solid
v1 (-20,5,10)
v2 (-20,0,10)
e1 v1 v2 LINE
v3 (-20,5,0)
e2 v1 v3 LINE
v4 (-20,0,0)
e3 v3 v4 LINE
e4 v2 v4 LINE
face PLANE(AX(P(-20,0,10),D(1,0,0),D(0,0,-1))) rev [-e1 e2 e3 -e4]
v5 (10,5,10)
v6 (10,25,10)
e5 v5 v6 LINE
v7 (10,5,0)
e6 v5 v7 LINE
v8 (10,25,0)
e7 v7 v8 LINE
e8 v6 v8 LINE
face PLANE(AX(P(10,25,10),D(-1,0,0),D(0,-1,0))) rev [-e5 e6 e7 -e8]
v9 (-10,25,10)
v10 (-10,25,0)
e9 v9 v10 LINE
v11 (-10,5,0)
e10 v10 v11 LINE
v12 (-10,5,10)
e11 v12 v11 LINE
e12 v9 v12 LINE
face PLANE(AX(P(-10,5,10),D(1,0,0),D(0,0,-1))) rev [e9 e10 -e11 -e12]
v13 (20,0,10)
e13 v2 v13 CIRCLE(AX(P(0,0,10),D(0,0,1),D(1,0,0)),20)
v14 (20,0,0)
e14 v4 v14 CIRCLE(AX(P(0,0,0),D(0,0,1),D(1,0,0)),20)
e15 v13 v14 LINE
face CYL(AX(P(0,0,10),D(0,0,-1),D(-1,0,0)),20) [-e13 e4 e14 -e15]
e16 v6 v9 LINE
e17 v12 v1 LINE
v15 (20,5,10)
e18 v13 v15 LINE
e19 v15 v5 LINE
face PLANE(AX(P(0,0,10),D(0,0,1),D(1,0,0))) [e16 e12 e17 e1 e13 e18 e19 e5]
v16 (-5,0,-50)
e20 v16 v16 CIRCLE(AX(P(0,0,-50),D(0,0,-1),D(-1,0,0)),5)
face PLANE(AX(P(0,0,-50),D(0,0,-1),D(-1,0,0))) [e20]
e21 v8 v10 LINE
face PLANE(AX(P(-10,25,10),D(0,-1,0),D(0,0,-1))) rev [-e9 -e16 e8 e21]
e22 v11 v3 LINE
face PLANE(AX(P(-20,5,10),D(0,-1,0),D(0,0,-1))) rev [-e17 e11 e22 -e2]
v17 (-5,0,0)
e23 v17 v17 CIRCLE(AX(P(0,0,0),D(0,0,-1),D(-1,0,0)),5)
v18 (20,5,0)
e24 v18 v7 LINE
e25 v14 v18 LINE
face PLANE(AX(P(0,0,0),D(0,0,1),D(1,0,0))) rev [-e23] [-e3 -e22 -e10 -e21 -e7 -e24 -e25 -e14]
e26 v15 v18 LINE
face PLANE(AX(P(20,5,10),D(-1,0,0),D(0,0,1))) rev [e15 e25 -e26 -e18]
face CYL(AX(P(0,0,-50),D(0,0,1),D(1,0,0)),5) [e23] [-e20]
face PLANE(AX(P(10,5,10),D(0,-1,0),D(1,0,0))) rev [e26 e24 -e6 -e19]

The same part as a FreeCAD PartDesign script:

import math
import FreeCAD as App
import Part
import Sketcher

doc = App.newDocument("Part")
params = doc.addObject("Spreadsheet::Sheet", "Params")
for row, (alias, value) in enumerate([
    ("sketch1_radius", "20 mm"),
    ("sketch1_width", "10 mm"),
    ("sketch1_height", "5 mm"),
    ("pad1_length", "10 mm"),
    ("sketch2_diameter", "10 mm"),
    ("pad2_length", "50 mm"),
], start=1):
    params.set(f"A{row}", alias)
    params.set(f"B{row}", "=" + value)
    params.setAlias(f"B{row}", alias)

body = doc.addObject("PartDesign::Body", "Body")

# Sketch on XY plane
sketch1 = body.newObject("Sketcher::SketchObject", "Sketch")
sketch1.AttachmentSupport = (doc.getObject("XY_Plane"), [""])
sketch1.MapMode = "FlatFace"
sketch1.addGeometry(Part.LineSegment(App.Vector(-20, 5, 0), App.Vector(-20, 0, 0)), False)
sketch1.addGeometry(Part.ArcOfCircle(Part.Circle(App.Vector(0, 0, 0), App.Vector(0, 0, 1), 20), math.radians(180), math.radians(360)), False)
sketch1.addGeometry(Part.LineSegment(App.Vector(20, 0, 0), App.Vector(20, 5, 0)), False)
sketch1.addGeometry(Part.LineSegment(App.Vector(20, 5, 0), App.Vector(10, 5, 0)), False)
sketch1.addGeometry(Part.LineSegment(App.Vector(10, 5, 0), App.Vector(10, 25, 0)), False)
sketch1.addGeometry(Part.LineSegment(App.Vector(10, 25, 0), App.Vector(-10, 25, 0)), False)
sketch1.addGeometry(Part.LineSegment(App.Vector(-10, 25, 0), App.Vector(-10, 5, 0)), False)
sketch1.addGeometry(Part.LineSegment(App.Vector(-10, 5, 0), App.Vector(-20, 5, 0)), False)
sketch1.addConstraint(Sketcher.Constraint("Tangent", 0, 2, 1, 1))
sketch1.addConstraint(Sketcher.Constraint("Tangent", 1, 2, 2, 1))
sketch1.addConstraint(Sketcher.Constraint("Coincident", 2, 2, 3, 1))
sketch1.addConstraint(Sketcher.Constraint("Coincident", 3, 2, 4, 1))
sketch1.addConstraint(Sketcher.Constraint("Coincident", 4, 2, 5, 1))
sketch1.addConstraint(Sketcher.Constraint("Coincident", 5, 2, 6, 1))
sketch1.addConstraint(Sketcher.Constraint("Coincident", 6, 2, 7, 1))
sketch1.addConstraint(Sketcher.Constraint("Coincident", 7, 2, 0, 1))
sketch1.addConstraint(Sketcher.Constraint("Vertical", 0))
sketch1.addConstraint(Sketcher.Constraint("Vertical", 2))
sketch1.addConstraint(Sketcher.Constraint("Horizontal", 3))
sketch1.addConstraint(Sketcher.Constraint("Vertical", 4))
sketch1.addConstraint(Sketcher.Constraint("Horizontal", 5))
sketch1.addConstraint(Sketcher.Constraint("Vertical", 6))
sketch1.addConstraint(Sketcher.Constraint("Horizontal", 7))
sketch1.addConstraint(Sketcher.Constraint("Coincident", 1, 3, -1, 1))
sketch1.addConstraint(Sketcher.Constraint("Symmetric", 3, 2, 6, 2, -2))
sketch1.addConstraint(Sketcher.Constraint("Equal", 5, 4))
sketch1.addConstraint(Sketcher.Constraint("Radius", 1, 20.0))
sketch1.addConstraint(Sketcher.Constraint("DistanceX", 3, 2, 3, 1, 10.0))
sketch1.addConstraint(Sketcher.Constraint("DistanceY", 0, 2, 0, 1, 5.0))
sketch1.setExpression("Constraints[18]", "Params.sketch1_radius")
sketch1.setExpression("Constraints[19]", "Params.sketch1_width")
sketch1.setExpression("Constraints[20]", "Params.sketch1_height")
pad1 = body.newObject("PartDesign::Pad", "Pad")
pad1.Profile = sketch1
pad1.setExpression("Length", "Params.pad1_length")

# Sketch on XY plane
sketch2 = body.newObject("Sketcher::SketchObject", "Sketch001")
sketch2.AttachmentSupport = (doc.getObject("XY_Plane"), [""])
sketch2.MapMode = "FlatFace"
sketch2.addGeometry(Part.Circle(App.Vector(0, 0, 0), App.Vector(0, 0, 1), 5), False)
sketch2.addConstraint(Sketcher.Constraint("Coincident", 0, 3, -1, 1))
sketch2.addConstraint(Sketcher.Constraint("Diameter", 0, 10.0))
sketch2.setExpression("Constraints[1]", "Params.sketch2_diameter")
pad2 = body.newObject("PartDesign::Pad", "Pad001")
pad2.Profile = sketch2
pad2.setExpression("Length", "Params.pad2_length")
pad2.Reversed = True

doc.recompute()
